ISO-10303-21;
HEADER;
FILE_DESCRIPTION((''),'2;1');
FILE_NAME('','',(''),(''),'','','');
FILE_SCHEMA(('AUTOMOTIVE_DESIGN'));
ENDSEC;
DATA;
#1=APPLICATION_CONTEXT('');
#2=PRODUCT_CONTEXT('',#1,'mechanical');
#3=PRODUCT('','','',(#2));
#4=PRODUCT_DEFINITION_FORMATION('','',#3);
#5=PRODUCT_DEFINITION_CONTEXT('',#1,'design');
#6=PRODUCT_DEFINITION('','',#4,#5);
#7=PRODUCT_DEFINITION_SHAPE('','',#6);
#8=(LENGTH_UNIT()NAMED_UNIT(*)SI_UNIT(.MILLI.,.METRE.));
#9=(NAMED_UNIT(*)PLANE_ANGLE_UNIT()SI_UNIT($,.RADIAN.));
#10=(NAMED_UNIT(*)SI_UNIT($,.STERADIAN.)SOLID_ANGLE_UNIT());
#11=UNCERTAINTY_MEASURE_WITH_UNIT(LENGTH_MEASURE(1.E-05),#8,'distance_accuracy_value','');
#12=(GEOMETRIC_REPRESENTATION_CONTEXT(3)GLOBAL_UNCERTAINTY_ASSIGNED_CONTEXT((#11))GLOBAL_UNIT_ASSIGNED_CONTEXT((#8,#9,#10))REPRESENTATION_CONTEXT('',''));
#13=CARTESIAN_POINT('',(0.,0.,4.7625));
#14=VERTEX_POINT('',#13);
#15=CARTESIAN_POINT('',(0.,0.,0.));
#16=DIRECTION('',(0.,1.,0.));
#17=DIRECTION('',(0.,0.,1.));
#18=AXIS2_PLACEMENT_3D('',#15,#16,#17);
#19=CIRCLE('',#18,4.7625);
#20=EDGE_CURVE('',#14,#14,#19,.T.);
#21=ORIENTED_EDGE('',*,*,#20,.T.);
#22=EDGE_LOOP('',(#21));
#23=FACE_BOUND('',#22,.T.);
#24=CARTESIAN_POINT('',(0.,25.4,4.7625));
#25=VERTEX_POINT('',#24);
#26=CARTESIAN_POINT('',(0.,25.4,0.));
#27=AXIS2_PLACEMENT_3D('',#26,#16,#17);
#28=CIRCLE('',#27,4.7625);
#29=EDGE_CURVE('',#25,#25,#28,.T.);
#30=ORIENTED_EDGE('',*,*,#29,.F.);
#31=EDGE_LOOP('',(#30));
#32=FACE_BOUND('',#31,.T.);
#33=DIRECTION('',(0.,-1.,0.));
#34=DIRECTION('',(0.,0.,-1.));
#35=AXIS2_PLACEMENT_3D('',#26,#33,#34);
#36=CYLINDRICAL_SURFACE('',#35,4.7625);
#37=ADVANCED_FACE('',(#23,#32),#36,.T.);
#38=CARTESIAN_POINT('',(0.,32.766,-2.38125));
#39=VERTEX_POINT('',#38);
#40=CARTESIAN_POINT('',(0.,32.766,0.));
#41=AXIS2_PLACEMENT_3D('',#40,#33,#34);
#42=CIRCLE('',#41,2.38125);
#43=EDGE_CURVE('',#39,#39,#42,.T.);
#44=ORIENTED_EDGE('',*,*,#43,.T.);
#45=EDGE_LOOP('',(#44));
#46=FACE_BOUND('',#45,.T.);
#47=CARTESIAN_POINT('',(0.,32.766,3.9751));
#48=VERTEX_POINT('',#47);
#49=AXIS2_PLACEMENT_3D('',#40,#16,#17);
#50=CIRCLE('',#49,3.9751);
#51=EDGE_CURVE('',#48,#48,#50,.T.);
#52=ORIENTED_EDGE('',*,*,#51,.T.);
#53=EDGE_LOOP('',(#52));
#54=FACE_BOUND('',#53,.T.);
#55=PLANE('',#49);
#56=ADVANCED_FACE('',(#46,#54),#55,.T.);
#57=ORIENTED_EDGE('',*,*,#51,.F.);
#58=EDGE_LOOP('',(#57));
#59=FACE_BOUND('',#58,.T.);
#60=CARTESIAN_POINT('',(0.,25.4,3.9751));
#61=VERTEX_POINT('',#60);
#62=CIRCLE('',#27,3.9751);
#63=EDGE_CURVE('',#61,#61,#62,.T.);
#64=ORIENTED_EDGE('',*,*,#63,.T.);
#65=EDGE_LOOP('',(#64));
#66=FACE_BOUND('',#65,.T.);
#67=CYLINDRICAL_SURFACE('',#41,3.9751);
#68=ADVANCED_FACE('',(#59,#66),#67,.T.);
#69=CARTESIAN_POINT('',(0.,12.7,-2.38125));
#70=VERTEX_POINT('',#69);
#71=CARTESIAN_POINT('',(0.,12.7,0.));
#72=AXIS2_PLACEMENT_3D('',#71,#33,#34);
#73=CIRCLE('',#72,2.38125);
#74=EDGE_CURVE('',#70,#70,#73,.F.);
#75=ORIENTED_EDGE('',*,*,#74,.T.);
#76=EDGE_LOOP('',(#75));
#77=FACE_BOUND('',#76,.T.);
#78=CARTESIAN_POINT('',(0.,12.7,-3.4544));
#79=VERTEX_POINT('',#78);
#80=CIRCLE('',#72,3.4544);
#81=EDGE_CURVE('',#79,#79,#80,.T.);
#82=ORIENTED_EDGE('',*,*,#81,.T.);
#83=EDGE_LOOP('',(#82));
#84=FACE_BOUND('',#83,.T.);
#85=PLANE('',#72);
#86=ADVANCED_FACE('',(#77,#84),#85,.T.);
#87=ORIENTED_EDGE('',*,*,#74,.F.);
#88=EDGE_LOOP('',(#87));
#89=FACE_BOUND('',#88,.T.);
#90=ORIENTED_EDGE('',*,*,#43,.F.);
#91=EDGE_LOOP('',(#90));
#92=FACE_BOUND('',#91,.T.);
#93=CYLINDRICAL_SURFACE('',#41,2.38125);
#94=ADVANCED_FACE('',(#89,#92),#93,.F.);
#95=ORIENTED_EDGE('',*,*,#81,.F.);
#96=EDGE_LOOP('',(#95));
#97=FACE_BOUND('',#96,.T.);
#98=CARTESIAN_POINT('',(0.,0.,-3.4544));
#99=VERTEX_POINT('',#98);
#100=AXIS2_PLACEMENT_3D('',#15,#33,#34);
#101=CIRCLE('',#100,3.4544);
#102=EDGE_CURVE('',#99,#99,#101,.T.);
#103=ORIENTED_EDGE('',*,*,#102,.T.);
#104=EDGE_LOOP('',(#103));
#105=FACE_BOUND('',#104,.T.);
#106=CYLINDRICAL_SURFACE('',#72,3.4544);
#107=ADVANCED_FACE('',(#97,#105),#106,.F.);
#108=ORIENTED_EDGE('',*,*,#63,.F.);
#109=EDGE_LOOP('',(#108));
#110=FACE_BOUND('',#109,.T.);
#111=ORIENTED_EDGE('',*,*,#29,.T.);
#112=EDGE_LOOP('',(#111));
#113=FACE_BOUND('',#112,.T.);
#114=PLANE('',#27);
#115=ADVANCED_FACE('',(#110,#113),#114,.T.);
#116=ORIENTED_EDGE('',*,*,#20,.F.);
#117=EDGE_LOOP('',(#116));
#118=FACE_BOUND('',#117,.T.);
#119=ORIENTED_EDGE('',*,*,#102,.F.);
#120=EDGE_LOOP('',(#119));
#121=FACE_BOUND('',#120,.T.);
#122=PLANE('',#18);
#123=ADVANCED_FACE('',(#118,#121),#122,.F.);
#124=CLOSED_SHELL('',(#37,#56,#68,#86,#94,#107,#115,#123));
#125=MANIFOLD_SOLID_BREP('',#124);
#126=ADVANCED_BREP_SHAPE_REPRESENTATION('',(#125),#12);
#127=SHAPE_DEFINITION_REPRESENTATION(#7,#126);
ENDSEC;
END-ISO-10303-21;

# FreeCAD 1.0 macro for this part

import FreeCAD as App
import Part
import Sketcher
Q = App.Units.Quantity

doc = App.newDocument("Part")
body = doc.addObject("PartDesign::Body", "Body")

# Sketch on XZ plane
sketch1 = body.newObject("Sketcher::SketchObject", "Sketch")
sketch1.AttachmentSupport = (doc.getObject("XZ_Plane"), [""])
sketch1.MapMode = "FlatFace"
sketch1.addGeometry(Part.Circle(App.Vector(0, 0, 0), App.Vector(0, 0, 1), 4.8), False)
sketch1.addConstraint([
    Sketcher.Constraint("Coincident", 0, 3, -1, 1),
    Sketcher.Constraint("Diameter", 0, Q("0.375 in")),
])
pad1 = body.newObject("PartDesign::Pad", "Pad")
pad1.Profile = sketch1
pad1.Length = Q("1 in")
pad1.Reversed = True

# Sketch on XZ plane
sketch2 = body.newObject("Sketcher::SketchObject", "Sketch001")
sketch2.AttachmentSupport = (doc.getObject("XZ_Plane"), [""])
sketch2.MapMode = "FlatFace"
sketch2.AttachmentOffset = App.Placement(App.Vector(0, 0, -1 * 25.4), App.Rotation())
sketch2.addGeometry(Part.Circle(App.Vector(0, 0, 0), App.Vector(0, 0, 1), 4), False)
sketch2.addConstraint([
    Sketcher.Constraint("Coincident", 0, 3, -1, 1),
    Sketcher.Constraint("Diameter", 0, Q("0.313 in")),
])
pad2 = body.newObject("PartDesign::Pad", "Pad001")
pad2.Profile = sketch2
pad2.Length = Q("0.29 in")
pad2.Reversed = True

# Sketch on XZ plane
sketch3 = body.newObject("Sketcher::SketchObject", "Sketch002")
sketch3.AttachmentSupport = (doc.getObject("XZ_Plane"), [""])
sketch3.MapMode = "FlatFace"
sketch3.addGeometry(Part.Circle(App.Vector(0, 0, 0), App.Vector(0, 0, 1), 2.4), False)
sketch3.addConstraint([
    Sketcher.Constraint("Coincident", 0, 3, -1, 1),
    Sketcher.Constraint("Diameter", 0, Q("0.1875 in")),
])
pocket1 = body.newObject("PartDesign::Pocket", "Pocket")
pocket1.Profile = sketch3
pocket1.Type = "ThroughAll"

# Sketch on XZ plane
sketch4 = body.newObject("Sketcher::SketchObject", "Sketch003")
sketch4.AttachmentSupport = (doc.getObject("XZ_Plane"), [""])
sketch4.MapMode = "FlatFace"
sketch4.addGeometry(Part.Circle(App.Vector(0, 0, 0), App.Vector(0, 0, 1), 3.5), False)
sketch4.addConstraint([
    Sketcher.Constraint("Coincident", 0, 3, -1, 1),
    Sketcher.Constraint("Diameter", 0, Q("0.272 in")),
])
pocket2 = body.newObject("PartDesign::Pocket", "Pocket001")
pocket2.Profile = sketch4
pocket2.Length = Q("0.5 in")

doc.recompute()
